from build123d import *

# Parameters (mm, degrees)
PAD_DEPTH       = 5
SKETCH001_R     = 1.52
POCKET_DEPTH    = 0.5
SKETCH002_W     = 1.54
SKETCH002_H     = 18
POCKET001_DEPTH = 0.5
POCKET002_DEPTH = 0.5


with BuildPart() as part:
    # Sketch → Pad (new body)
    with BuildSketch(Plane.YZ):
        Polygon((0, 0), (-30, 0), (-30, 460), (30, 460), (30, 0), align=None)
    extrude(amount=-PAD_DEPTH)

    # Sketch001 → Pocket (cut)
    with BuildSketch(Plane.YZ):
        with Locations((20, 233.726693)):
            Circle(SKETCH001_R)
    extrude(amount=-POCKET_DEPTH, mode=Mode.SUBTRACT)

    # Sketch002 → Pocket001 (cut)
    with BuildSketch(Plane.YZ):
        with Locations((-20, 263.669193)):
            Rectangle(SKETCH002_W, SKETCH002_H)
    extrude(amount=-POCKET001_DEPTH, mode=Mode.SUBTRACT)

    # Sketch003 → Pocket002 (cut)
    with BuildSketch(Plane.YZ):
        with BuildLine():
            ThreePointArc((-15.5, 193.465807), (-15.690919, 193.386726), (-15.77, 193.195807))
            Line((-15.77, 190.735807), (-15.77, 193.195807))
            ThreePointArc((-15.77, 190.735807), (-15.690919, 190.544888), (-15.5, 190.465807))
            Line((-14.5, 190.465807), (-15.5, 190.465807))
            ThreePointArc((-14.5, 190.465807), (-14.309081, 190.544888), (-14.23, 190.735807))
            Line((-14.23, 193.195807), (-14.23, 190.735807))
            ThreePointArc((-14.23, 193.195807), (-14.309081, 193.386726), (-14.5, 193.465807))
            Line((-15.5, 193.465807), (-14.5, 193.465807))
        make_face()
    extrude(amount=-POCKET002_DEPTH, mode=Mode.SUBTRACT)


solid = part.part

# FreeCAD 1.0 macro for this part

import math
import FreeCAD as App
import Part
import Sketcher

V = App.Vector
Q = App.Units.Quantity


def add_polygon(sketch, points):
    """Adds a closed chain of lines whose ends are joined by coincident constraints."""
    first, n = sketch.GeometryCount, len(points)
    for a, b in zip(points, points[1:] + points[:1]):
        sketch.addGeometry(Part.LineSegment(App.Vector(*a, 0), App.Vector(*b, 0)), False)
    for i in range(n):
        sketch.addConstraint(Sketcher.Constraint("Coincident", first + i, 2, first + (i + 1) % n, 1))

doc = App.newDocument("Part")
params = doc.addObject("Spreadsheet::Sheet", "Params")
for row, (alias, value) in enumerate([
    ("sketch1_width", "60 mm"),
    ("sketch1_height", "460 mm"),
    ("pad1_length", "5 mm"),
    ("sketch2_diameter", "3.04 mm"),
    ("pocket1_length", "0.5 mm"),
    ("sketch3_height", "18 mm"),
    ("sketch3_width", "1.54 mm"),
    ("pocket2_length", "0.5 mm"),
    ("sketch4_width", "1 mm"),
    ("sketch4_radius", "0.269999 mm"),
    ("sketch4_height", "2.46 mm"),
    ("pocket3_length", "0.5 mm"),
], start=1):
    params.set(f"A{row}", alias)
    params.set(f"B{row}", "=" + value)
    params.setAlias(f"B{row}", alias)

body = doc.addObject("PartDesign::Body", "Body")

# Sketch on YZ plane
sketch1 = doc.addObject("Sketcher::SketchObject", "Sketch")
body.addObject(sketch1)
sketch1.AttachmentSupport = (doc.YZ_Plane, [""])
sketch1.MapMode = "FlatFace"
add_polygon(sketch1, [(-30, 0), (30, 0), (30, 460), (-30, 460)])  # lines 0-3
sketch1.addConstraint([
    Sketcher.Constraint("Horizontal", 0),
    Sketcher.Constraint("Vertical", 1),
    Sketcher.Constraint("Horizontal", 2),
    Sketcher.Constraint("Vertical", 3),
    Sketcher.Constraint("Symmetric", 0, 2, 3, 2, -1, 1),
    Sketcher.Constraint("DistanceX", 0, 1, 0, 2, Q("60 mm")),
    Sketcher.Constraint("DistanceY", 1, 1, 1, 2, Q("460 mm")),
])
sketch1.setExpression("Constraints[9]", "Params.sketch1_width")
sketch1.setExpression("Constraints[10]", "Params.sketch1_height")
pad1 = doc.addObject("PartDesign::Pad", "Pad")
body.addObject(pad1)
pad1.Profile = sketch1
pad1.setExpression("Length", "Params.pad1_length")
pad1.Reversed = True

# Sketch on YZ plane
sketch2 = doc.addObject("Sketcher::SketchObject", "Sketch001")
body.addObject(sketch2)
sketch2.AttachmentSupport = (doc.YZ_Plane, [""])
sketch2.MapMode = "FlatFace"
sketch2.addGeometry(Part.Circle(V(20, 233.726693, 0), V(0, 0, 1), 1.52), False)
sketch2.addConstraint([
    Sketcher.Constraint("Diameter", 0, Q("3.04 mm")),
    Sketcher.Constraint("DistanceX", -1, 1, 0, 3, Q("20 mm")),
    Sketcher.Constraint("DistanceY", -1, 1, 0, 3, Q("233.726693 mm")),
])
sketch2.setExpression("Constraints[0]", "Params.sketch2_diameter")
pocket1 = doc.addObject("PartDesign::Pocket", "Pocket")
body.addObject(pocket1)
pocket1.Profile = sketch2
pocket1.setExpression("Length", "Params.pocket1_length")

# Sketch on YZ plane
sketch3 = doc.addObject("Sketcher::SketchObject", "Sketch002")
body.addObject(sketch3)
sketch3.AttachmentSupport = (doc.YZ_Plane, [""])
sketch3.MapMode = "FlatFace"
add_polygon(sketch3, [(-20.77, 272.669193), (-20.77, 254.669193), (-19.23, 254.669193), (-19.23, 272.669193)])  # lines 0-3
sketch3.addConstraint([
    Sketcher.Constraint("Vertical", 0),
    Sketcher.Constraint("Horizontal", 1),
    Sketcher.Constraint("Vertical", 2),
    Sketcher.Constraint("Horizontal", 3),
    Sketcher.Constraint("DistanceY", 0, 2, 0, 1, Q("18 mm")),
    Sketcher.Constraint("DistanceX", 1, 1, 1, 2, Q("1.54 mm")),
    Sketcher.Constraint("DistanceX", 0, 2, -1, 1, Q("20.77 mm")),
    Sketcher.Constraint("DistanceY", -1, 1, 0, 2, Q("254.669193 mm")),
])
sketch3.setExpression("Constraints[8]", "Params.sketch3_height")
sketch3.setExpression("Constraints[9]", "Params.sketch3_width")
pocket2 = doc.addObject("PartDesign::Pocket", "Pocket001")
body.addObject(pocket2)
pocket2.Profile = sketch3
pocket2.setExpression("Length", "Params.pocket2_length")

# Sketch on YZ plane
sketch4 = doc.addObject("Sketcher::SketchObject", "Sketch003")
body.addObject(sketch4)
sketch4.AttachmentSupport = (doc.YZ_Plane, [""])
sketch4.MapMode = "FlatFace"
sketch4.addGeometry([
    Part.ArcOfCircle(Part.Circle(V(-15.500001, 193.195808, 0), V(0, 0, 1), 0.269999), math.radians(89.999878), math.radians(180.000122)),  # 0
    Part.LineSegment(V(-15.77, 193.195807, 0), V(-15.77, 190.735807, 0)),  # 1
    Part.ArcOfCircle(Part.Circle(V(-15.500001, 190.735806, 0), V(0, 0, 1), 0.269999), math.radians(179.999878), math.radians(270.000122)),  # 2
    Part.LineSegment(V(-15.5, 190.465807, 0), V(-14.5, 190.465807, 0)),  # 3
    Part.ArcOfCircle(Part.Circle(V(-14.499999, 190.735806, 0), V(0, 0, 1), 0.269999), math.radians(-90.000122), math.radians(0.000122)),  # 4
    Part.LineSegment(V(-14.23, 190.735807, 0), V(-14.23, 193.195807, 0)),  # 5
    Part.ArcOfCircle(Part.Circle(V(-14.499999, 193.195808, 0), V(0, 0, 1), 0.269999), math.radians(-0.000122), math.radians(90.000122)),  # 6
    Part.LineSegment(V(-14.5, 193.465807, 0), V(-15.5, 193.465807, 0)),  # 7
], False)
sketch4.addConstraint([
    Sketcher.Constraint("Coincident", 0, 2, 1, 1),
    Sketcher.Constraint("Coincident", 1, 2, 2, 1),
    Sketcher.Constraint("Coincident", 2, 2, 3, 1),
    Sketcher.Constraint("Coincident", 3, 2, 4, 1),
    Sketcher.Constraint("Coincident", 4, 2, 5, 1),
    Sketcher.Constraint("Coincident", 5, 2, 6, 1),
    Sketcher.Constraint("Coincident", 6, 2, 7, 1),
    Sketcher.Constraint("Coincident", 7, 2, 0, 1),
    Sketcher.Constraint("Vertical", 1),
    Sketcher.Constraint("Horizontal", 3),
    Sketcher.Constraint("Vertical", 5),
    Sketcher.Constraint("Horizontal", 7),
    Sketcher.Constraint("Equal", 0, 2),
    Sketcher.Constraint("Equal", 2, 4),
    Sketcher.Constraint("Equal", 4, 6),
    Sketcher.Constraint("Horizontal", 6, 3, 0, 2),
    Sketcher.Constraint("Horizontal", 4, 3, 1, 2),
    Sketcher.Constraint("Horizontal", 1, 2, 4, 2),
    Sketcher.Constraint("Horizontal", 0, 2, 5, 2),
    Sketcher.Constraint("Vertical", 0, 3, 2, 2),
    Sketcher.Constraint("Vertical", 6, 3, 3, 2),
    Sketcher.Constraint("Vertical", 3, 2, 6, 2),
    Sketcher.Constraint("Vertical", 2, 2, 7, 2),
    Sketcher.Constraint("DistanceX", 3, 1, 3, 2, Q("1 mm")),
    Sketcher.Constraint("Radius", 0, Q("0.269999 mm")),
    Sketcher.Constraint("DistanceY", 1, 2, 1, 1, Q("2.46 mm")),
    Sketcher.Constraint("DistanceX", 0, 3, -1, 1, Q("15.500001 mm")),
    Sketcher.Constraint("DistanceY", -1, 1, 0, 3, Q("193.195808 mm")),
])
sketch4.setExpression("Constraints[23]", "Params.sketch4_width")
sketch4.setExpression("Constraints[24]", "Params.sketch4_radius")
sketch4.setExpression("Constraints[25]", "Params.sketch4_height")
pocket3 = doc.addObject("PartDesign::Pocket", "Pocket002")
body.addObject(pocket3)
pocket3.Profile = sketch4
pocket3.setExpression("Length", "Params.pocket3_length")

doc.recompute()
